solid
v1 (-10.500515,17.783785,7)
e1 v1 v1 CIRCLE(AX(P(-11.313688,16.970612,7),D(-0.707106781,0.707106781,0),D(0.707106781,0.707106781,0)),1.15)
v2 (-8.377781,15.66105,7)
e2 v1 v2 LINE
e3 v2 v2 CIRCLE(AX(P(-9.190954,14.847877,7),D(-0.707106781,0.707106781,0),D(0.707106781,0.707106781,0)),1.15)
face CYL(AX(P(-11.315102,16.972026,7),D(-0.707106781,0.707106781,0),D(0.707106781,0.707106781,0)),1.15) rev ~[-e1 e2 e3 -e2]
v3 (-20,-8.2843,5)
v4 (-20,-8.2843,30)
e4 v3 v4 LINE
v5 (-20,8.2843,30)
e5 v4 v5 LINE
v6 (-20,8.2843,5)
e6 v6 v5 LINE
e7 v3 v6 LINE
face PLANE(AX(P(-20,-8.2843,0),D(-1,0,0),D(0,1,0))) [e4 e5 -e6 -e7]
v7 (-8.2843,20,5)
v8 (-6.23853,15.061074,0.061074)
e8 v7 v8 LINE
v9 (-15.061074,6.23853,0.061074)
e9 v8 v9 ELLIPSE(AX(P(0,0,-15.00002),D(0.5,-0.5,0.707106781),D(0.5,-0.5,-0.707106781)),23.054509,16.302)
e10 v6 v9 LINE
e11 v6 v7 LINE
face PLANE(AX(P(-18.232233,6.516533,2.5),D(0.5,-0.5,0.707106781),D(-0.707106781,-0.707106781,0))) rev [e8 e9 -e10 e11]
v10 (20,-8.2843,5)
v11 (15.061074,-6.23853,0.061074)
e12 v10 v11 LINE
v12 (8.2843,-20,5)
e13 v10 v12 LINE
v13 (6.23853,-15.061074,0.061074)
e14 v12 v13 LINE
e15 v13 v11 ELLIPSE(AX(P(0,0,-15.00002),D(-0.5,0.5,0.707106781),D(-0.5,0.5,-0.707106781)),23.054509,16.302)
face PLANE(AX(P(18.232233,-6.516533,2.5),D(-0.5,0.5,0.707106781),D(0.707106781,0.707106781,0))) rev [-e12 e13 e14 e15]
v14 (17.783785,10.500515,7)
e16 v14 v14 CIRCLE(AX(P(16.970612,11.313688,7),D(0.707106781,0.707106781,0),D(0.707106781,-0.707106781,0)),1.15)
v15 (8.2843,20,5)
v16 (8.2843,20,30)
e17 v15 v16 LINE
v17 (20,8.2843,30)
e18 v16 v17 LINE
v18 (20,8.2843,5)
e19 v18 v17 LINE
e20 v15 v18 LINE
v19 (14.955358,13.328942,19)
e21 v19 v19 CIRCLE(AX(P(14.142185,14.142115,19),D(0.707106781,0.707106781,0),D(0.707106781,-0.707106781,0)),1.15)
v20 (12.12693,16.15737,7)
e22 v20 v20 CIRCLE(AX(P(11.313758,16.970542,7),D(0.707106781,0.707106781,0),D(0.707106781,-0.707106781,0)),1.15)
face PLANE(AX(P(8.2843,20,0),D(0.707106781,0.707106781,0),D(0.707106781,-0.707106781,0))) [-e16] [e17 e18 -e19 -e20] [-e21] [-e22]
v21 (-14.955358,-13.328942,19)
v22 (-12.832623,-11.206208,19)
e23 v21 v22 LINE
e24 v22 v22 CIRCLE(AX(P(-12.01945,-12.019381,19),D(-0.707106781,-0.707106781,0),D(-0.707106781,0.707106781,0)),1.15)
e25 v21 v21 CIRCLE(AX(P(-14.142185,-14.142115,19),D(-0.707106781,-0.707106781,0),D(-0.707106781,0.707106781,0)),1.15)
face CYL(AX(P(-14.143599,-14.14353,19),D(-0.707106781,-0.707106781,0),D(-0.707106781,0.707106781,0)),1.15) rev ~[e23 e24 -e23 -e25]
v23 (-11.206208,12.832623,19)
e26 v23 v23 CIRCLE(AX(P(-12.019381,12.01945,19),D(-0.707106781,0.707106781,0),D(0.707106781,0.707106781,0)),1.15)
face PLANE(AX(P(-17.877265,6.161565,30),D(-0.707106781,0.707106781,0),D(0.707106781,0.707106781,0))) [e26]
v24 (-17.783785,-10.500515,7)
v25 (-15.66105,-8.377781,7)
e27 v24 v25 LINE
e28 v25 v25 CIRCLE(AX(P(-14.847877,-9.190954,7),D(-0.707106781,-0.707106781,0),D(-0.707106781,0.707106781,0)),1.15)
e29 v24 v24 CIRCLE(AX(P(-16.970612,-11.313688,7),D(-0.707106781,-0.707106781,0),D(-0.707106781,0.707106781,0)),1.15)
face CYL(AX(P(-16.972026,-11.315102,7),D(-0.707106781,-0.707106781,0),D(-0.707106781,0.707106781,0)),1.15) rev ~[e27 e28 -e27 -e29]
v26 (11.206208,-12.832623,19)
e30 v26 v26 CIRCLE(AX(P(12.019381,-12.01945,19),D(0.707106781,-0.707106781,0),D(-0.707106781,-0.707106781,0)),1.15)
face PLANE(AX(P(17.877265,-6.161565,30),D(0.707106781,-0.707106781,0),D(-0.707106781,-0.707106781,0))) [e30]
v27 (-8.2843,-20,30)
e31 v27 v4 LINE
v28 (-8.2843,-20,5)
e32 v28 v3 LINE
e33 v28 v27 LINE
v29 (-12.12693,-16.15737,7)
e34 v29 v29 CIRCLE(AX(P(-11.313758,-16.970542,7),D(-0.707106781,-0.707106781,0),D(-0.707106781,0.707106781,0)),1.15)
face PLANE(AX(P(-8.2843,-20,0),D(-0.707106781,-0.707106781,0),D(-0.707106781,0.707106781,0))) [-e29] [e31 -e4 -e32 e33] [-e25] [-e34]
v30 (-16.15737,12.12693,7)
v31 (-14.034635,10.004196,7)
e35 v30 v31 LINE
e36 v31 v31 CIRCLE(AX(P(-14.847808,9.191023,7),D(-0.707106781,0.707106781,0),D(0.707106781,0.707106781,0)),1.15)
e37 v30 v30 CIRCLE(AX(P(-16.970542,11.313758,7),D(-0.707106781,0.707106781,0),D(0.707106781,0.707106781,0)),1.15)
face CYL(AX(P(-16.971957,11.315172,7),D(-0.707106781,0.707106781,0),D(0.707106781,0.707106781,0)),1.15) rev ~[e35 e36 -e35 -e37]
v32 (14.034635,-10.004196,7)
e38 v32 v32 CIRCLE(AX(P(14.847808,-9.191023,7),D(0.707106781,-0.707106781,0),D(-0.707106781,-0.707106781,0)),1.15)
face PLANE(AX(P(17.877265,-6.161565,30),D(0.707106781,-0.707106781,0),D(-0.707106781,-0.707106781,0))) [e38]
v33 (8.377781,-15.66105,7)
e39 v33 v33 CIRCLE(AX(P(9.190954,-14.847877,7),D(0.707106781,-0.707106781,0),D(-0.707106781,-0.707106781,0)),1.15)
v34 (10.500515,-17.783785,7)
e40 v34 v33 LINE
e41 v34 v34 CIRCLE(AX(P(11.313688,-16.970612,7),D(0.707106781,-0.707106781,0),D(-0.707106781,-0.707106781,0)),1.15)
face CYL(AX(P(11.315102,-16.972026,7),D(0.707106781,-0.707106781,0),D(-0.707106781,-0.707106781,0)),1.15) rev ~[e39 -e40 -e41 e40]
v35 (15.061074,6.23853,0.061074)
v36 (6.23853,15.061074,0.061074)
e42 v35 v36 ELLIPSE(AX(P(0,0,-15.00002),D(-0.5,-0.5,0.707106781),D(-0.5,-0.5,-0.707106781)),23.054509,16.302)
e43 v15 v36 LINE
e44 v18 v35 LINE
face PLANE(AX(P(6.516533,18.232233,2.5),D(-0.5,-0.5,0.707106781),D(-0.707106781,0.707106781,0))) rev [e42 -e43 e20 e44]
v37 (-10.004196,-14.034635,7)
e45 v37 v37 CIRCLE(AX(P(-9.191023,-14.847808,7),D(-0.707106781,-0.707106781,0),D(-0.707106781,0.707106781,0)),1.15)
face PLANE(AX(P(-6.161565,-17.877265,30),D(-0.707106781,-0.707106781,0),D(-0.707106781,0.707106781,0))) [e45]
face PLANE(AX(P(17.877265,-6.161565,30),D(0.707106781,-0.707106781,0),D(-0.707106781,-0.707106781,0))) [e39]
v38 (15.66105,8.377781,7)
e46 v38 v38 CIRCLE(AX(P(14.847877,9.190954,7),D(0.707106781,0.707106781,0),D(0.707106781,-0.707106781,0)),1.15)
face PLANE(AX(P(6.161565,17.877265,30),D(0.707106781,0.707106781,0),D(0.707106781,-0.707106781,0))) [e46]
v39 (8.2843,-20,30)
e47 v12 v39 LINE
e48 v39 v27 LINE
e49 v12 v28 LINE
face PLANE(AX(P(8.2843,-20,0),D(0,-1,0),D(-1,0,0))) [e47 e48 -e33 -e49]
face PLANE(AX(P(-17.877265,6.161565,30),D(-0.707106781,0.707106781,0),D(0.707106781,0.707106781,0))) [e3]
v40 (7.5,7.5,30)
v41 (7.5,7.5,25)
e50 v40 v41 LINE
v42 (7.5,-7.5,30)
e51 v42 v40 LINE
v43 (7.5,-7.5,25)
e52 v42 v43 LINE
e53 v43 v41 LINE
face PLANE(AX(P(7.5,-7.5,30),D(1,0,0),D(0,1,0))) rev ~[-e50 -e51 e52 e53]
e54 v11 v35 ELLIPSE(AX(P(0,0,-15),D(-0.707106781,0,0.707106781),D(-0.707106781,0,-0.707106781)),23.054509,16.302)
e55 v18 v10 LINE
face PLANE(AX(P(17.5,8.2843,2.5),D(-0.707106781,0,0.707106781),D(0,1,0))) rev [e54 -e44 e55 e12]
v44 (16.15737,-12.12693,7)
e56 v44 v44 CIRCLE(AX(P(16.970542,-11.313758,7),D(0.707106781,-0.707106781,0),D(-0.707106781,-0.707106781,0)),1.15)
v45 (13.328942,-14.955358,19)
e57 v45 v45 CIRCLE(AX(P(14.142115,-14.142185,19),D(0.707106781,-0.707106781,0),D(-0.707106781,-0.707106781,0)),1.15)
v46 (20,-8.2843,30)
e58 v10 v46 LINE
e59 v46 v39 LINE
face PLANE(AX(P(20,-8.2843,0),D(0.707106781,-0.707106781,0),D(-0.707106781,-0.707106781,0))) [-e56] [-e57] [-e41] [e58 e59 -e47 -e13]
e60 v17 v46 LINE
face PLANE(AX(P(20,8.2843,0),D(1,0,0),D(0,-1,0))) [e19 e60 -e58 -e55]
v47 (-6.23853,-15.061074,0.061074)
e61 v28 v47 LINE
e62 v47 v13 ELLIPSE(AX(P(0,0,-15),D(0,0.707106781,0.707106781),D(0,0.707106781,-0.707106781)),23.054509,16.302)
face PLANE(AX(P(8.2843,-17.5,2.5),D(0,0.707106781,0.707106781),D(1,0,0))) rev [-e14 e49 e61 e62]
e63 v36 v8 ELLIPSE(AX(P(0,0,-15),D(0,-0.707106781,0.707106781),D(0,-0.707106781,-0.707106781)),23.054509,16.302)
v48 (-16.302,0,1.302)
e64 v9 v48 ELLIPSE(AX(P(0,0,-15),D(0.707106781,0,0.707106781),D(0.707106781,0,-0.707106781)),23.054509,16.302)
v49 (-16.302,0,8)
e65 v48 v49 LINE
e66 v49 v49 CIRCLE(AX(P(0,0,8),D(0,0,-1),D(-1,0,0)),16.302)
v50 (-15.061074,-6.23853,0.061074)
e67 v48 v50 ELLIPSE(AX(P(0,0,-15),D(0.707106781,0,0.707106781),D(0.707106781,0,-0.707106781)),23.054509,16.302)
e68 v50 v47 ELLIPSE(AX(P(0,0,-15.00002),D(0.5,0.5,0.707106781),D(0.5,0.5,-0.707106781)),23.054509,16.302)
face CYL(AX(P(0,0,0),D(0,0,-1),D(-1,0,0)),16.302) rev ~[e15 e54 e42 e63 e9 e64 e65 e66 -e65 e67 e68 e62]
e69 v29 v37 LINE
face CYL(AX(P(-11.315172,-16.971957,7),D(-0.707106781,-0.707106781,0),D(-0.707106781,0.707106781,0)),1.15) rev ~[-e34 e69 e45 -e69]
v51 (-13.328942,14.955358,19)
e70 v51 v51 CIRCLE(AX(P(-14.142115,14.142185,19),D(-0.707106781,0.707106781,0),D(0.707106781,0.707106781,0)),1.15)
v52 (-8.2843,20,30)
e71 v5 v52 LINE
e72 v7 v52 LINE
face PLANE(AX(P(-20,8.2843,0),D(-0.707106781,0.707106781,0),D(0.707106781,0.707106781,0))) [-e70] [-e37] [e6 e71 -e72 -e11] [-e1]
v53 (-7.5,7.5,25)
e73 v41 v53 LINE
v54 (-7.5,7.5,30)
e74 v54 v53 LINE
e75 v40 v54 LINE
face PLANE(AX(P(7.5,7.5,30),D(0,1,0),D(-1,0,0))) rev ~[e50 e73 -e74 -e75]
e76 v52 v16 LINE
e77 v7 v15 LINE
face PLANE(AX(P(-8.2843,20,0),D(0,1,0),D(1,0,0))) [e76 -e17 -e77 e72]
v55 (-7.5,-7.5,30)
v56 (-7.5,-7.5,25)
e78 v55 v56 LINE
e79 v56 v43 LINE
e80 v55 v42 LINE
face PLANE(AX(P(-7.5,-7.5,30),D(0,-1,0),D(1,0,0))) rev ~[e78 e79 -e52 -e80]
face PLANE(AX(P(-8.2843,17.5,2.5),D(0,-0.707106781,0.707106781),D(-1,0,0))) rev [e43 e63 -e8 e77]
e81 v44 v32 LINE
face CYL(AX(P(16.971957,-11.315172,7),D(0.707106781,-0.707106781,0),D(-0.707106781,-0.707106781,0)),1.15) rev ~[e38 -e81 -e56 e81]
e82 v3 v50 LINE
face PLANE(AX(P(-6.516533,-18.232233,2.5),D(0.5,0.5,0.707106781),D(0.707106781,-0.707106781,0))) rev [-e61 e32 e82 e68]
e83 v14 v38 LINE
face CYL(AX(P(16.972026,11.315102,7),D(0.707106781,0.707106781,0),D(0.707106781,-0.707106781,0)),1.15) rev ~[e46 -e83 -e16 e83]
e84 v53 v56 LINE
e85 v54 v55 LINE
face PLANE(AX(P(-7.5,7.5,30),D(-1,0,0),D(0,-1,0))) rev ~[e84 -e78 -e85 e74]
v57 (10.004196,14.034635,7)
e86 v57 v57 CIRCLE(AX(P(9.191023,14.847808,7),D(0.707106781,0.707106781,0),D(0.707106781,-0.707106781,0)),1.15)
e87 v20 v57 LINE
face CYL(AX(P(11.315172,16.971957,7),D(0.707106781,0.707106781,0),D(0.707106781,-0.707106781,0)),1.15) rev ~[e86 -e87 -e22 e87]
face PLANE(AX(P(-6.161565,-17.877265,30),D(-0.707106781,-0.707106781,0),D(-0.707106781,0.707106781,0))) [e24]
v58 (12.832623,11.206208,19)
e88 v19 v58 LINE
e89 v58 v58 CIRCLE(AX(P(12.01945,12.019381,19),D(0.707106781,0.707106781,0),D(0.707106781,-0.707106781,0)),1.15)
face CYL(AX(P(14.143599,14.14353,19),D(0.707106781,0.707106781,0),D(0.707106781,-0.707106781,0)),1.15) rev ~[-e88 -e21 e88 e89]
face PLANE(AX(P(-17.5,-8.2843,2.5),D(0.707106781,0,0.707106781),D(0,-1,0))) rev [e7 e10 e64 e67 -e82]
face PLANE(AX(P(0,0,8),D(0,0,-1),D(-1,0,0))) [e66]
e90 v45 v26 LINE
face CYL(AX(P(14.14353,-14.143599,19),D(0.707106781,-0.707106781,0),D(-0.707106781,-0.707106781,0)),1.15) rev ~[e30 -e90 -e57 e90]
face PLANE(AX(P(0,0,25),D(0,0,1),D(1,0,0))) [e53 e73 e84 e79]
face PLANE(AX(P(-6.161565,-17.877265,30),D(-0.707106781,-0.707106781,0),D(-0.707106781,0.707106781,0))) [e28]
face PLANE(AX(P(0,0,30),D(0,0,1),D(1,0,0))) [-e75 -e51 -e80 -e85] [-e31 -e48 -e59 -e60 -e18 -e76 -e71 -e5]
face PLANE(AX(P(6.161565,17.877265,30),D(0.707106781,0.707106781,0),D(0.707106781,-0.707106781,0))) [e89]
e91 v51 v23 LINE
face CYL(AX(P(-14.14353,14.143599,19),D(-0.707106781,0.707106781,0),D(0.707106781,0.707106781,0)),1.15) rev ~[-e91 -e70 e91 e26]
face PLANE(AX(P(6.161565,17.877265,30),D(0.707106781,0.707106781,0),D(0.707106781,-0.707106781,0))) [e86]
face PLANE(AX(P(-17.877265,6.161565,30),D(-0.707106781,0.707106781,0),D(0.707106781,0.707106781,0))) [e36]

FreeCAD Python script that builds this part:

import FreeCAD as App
import Part
import Sketcher
from FreeCAD import Vector
Q = App.Units.Quantity


def edges_at(feature, points):
    """Names of the edges that pass closest to the given points."""
    edges = feature.Shape.Edges
    near = lambda p: min(range(len(edges)), key=lambda i: edges[i].distToShape(Part.Vertex(*p))[0])
    return sorted({f"Edge{near(p) + 1}" for p in points})


def add_polygon(sketch, points):
    """Adds a closed chain of lines whose ends are joined by coincident constraints."""
    first, n = sketch.GeometryCount, len(points)
    for a, b in zip(points, points[1:] + points[:1]):
        sketch.addGeometry(Part.LineSegment(App.Vector(*a, 0), App.Vector(*b, 0)), False)
    for i in range(n):
        sketch.addConstraint(Sketcher.Constraint("Coincident", first + i, 2, first + (i + 1) % n, 1))

doc = App.newDocument("Part")
body = doc.addObject("PartDesign::Body", "Body")

sketch1 = body.newObject("Sketcher::SketchObject", "Sketch")
sketch1.AttachmentSupport = (doc.getObject("XY_Plane"), [""])
sketch1.MapMode = "FlatFace"
add_polygon(sketch1, [(20, 8), (8, 20), (-8, 20), (-20, 8), (-20, -8), (-8, -20), (8, -20), (20, -8)])
sketch1.addConstraint(Sketcher.Constraint("Horizontal", 1))
sketch1.addConstraint(Sketcher.Constraint("Vertical", 3))
sketch1.addConstraint(Sketcher.Constraint("Horizontal", 5))
sketch1.addConstraint(Sketcher.Constraint("Vertical", 7))
sketch1.addConstraint(Sketcher.Constraint("Symmetric", 0, 2, 4, 2, -1, 1))
sketch1.addConstraint(Sketcher.Constraint("Symmetric", 2, 2, 6, 2, -1, 1))
sketch1.addConstraint(Sketcher.Constraint("Perpendicular", 0, 2))
sketch1.addConstraint(Sketcher.Constraint("Perpendicular", 2, 4))
sketch1.addConstraint(Sketcher.Constraint("Perpendicular", 4, 6))
sketch1.addConstraint(Sketcher.Constraint("Horizontal", 3, 2, 6, 2))
sketch1.addConstraint(Sketcher.Constraint("Vertical", 1, 2, 4, 2))
sketch1.addConstraint(Sketcher.Constraint("Equal", 5, 3))
sketch1.addConstraint(Sketcher.Constraint("DistanceY", 4, 2, 1, 2, Q("40 mm")))
sketch1.addConstraint(Sketcher.Constraint("DistanceX", 1, 2, 1, 1, Q("16.5686 mm")))
pad1 = body.newObject("PartDesign::Pad", "Pad")
pad1.Profile = sketch1
pad1.Length = 30
doc.recompute()

chamfer = body.newObject("PartDesign::Chamfer", "Chamfer")
chamfer.Base = (pad1, edges_at(pad1, [
    (-14.142, 14.142, 0),
    (-20, 0, 0),
    (-14.142, -14.142, 0),
    (0, -20, 0),
    (14.142, -14.142, 0),
    (20, 0, 0),
    (14.142, 14.142, 0),
    (0, 20, 0),
]))
chamfer.Size = 5

sketch2 = body.newObject("Sketcher::SketchObject", "Sketch001")
sketch2.AttachmentSupport = (doc.getObject("XY_Plane"), [""])
sketch2.MapMode = "FlatFace"
sketch2.addGeometry(Part.Circle(Vector(0, 0, 0), Vector(0, 0, 1), 16), False)
sketch2.addConstraint(Sketcher.Constraint("Coincident", 0, 3, -1, 1))
sketch2.addConstraint(Sketcher.Constraint("Diameter", 0, Q("32.604 mm")))
pocket1 = body.newObject("PartDesign::Pocket", "Pocket")
pocket1.Profile = sketch2
pocket1.Length = 8
pocket1.Reversed = True

sketch3 = body.newObject("Sketcher::SketchObject", "Sketch002")
sketch3.AttachmentSupport = (doc.getObject("XY_Plane"), [""])
sketch3.MapMode = "FlatFace"
sketch3.AttachmentOffset = App.Placement(Vector(0, 0, 30), App.Rotation())
add_polygon(sketch3, [(-8, 8), (-8, -8), (8, -8), (8, 8)])
sketch3.addConstraint(Sketcher.Constraint("Vertical", 0))
sketch3.addConstraint(Sketcher.Constraint("Horizontal", 1))
sketch3.addConstraint(Sketcher.Constraint("Vertical", 2))
sketch3.addConstraint(Sketcher.Constraint("Horizontal", 3))
sketch3.addConstraint(Sketcher.Constraint("Symmetric", 0, 2, 2, 2, -1, 1))
sketch3.addConstraint(Sketcher.Constraint("Equal", 3, 0))
sketch3.addConstraint(Sketcher.Constraint("DistanceX", 1, 1, 1, 2, Q("15 mm")))
pocket2 = body.newObject("PartDesign::Pocket", "Pocket001")
pocket2.Profile = sketch3
pocket2.Length = 5

sketch4 = body.newObject("Sketcher::SketchObject", "Sketch003")
sketch4.Placement = App.Placement(Vector(-8.2843, -20, 30), App.Rotation(Vector(-0.707106781, 0.707106781, 0), Vector(0, 0, -0.999999999), Vector(-0.707106781, -0.707106781, 0), "ZXY"))
sketch4.addGeometry(Part.Circle(Vector(8.3, 11, 0), Vector(0, 0, 1), 1.1), False)
sketch4.addGeometry(Part.Circle(Vector(12.3, 23, 0), Vector(0, 0, 1), 1.1), False)
sketch4.addGeometry(Part.Circle(Vector(4.3, 23, 0), Vector(0, 0, 1), 1.1), False)
sketch4.addConstraint(Sketcher.Constraint("Equal", 0, 1))
sketch4.addConstraint(Sketcher.Constraint("Equal", 1, 2))
sketch4.addConstraint(Sketcher.Constraint("Horizontal", 1, 3, 2, 3))
sketch4.addConstraint(Sketcher.Constraint("Diameter", 0, Q("2.3 mm")))
sketch4.addConstraint(Sketcher.Constraint("DistanceY", 0, 3, 1, 3, Q("12 mm")))
sketch4.addConstraint(Sketcher.Constraint("DistanceX", 2, 3, 1, 3, Q("8 mm")))
sketch4.addConstraint(Sketcher.Constraint("DistanceY", -1, 1, 0, 3, Q("11 mm")))
sketch4.addConstraint(Sketcher.Constraint("DistanceX", 0, 3, 1, 3, Q("4 mm")))
sketch4.addConstraint(Sketcher.Constraint("DistanceX", -1, 1, 0, 3, Q("8.2843 mm")))
pocket3 = body.newObject("PartDesign::Pocket", "Pocket002")
pocket3.Profile = sketch4
pocket3.Length = 3
doc.recompute()

polarpattern = body.newObject("PartDesign::PolarPattern", "PolarPattern")
polarpattern.Originals = [pocket3]
polarpattern.Axis = (doc.getObject("Z_Axis"), [""])
polarpattern.Angle = 360
polarpattern.Occurrences = 4
body.Tip = polarpattern

doc.recompute()
